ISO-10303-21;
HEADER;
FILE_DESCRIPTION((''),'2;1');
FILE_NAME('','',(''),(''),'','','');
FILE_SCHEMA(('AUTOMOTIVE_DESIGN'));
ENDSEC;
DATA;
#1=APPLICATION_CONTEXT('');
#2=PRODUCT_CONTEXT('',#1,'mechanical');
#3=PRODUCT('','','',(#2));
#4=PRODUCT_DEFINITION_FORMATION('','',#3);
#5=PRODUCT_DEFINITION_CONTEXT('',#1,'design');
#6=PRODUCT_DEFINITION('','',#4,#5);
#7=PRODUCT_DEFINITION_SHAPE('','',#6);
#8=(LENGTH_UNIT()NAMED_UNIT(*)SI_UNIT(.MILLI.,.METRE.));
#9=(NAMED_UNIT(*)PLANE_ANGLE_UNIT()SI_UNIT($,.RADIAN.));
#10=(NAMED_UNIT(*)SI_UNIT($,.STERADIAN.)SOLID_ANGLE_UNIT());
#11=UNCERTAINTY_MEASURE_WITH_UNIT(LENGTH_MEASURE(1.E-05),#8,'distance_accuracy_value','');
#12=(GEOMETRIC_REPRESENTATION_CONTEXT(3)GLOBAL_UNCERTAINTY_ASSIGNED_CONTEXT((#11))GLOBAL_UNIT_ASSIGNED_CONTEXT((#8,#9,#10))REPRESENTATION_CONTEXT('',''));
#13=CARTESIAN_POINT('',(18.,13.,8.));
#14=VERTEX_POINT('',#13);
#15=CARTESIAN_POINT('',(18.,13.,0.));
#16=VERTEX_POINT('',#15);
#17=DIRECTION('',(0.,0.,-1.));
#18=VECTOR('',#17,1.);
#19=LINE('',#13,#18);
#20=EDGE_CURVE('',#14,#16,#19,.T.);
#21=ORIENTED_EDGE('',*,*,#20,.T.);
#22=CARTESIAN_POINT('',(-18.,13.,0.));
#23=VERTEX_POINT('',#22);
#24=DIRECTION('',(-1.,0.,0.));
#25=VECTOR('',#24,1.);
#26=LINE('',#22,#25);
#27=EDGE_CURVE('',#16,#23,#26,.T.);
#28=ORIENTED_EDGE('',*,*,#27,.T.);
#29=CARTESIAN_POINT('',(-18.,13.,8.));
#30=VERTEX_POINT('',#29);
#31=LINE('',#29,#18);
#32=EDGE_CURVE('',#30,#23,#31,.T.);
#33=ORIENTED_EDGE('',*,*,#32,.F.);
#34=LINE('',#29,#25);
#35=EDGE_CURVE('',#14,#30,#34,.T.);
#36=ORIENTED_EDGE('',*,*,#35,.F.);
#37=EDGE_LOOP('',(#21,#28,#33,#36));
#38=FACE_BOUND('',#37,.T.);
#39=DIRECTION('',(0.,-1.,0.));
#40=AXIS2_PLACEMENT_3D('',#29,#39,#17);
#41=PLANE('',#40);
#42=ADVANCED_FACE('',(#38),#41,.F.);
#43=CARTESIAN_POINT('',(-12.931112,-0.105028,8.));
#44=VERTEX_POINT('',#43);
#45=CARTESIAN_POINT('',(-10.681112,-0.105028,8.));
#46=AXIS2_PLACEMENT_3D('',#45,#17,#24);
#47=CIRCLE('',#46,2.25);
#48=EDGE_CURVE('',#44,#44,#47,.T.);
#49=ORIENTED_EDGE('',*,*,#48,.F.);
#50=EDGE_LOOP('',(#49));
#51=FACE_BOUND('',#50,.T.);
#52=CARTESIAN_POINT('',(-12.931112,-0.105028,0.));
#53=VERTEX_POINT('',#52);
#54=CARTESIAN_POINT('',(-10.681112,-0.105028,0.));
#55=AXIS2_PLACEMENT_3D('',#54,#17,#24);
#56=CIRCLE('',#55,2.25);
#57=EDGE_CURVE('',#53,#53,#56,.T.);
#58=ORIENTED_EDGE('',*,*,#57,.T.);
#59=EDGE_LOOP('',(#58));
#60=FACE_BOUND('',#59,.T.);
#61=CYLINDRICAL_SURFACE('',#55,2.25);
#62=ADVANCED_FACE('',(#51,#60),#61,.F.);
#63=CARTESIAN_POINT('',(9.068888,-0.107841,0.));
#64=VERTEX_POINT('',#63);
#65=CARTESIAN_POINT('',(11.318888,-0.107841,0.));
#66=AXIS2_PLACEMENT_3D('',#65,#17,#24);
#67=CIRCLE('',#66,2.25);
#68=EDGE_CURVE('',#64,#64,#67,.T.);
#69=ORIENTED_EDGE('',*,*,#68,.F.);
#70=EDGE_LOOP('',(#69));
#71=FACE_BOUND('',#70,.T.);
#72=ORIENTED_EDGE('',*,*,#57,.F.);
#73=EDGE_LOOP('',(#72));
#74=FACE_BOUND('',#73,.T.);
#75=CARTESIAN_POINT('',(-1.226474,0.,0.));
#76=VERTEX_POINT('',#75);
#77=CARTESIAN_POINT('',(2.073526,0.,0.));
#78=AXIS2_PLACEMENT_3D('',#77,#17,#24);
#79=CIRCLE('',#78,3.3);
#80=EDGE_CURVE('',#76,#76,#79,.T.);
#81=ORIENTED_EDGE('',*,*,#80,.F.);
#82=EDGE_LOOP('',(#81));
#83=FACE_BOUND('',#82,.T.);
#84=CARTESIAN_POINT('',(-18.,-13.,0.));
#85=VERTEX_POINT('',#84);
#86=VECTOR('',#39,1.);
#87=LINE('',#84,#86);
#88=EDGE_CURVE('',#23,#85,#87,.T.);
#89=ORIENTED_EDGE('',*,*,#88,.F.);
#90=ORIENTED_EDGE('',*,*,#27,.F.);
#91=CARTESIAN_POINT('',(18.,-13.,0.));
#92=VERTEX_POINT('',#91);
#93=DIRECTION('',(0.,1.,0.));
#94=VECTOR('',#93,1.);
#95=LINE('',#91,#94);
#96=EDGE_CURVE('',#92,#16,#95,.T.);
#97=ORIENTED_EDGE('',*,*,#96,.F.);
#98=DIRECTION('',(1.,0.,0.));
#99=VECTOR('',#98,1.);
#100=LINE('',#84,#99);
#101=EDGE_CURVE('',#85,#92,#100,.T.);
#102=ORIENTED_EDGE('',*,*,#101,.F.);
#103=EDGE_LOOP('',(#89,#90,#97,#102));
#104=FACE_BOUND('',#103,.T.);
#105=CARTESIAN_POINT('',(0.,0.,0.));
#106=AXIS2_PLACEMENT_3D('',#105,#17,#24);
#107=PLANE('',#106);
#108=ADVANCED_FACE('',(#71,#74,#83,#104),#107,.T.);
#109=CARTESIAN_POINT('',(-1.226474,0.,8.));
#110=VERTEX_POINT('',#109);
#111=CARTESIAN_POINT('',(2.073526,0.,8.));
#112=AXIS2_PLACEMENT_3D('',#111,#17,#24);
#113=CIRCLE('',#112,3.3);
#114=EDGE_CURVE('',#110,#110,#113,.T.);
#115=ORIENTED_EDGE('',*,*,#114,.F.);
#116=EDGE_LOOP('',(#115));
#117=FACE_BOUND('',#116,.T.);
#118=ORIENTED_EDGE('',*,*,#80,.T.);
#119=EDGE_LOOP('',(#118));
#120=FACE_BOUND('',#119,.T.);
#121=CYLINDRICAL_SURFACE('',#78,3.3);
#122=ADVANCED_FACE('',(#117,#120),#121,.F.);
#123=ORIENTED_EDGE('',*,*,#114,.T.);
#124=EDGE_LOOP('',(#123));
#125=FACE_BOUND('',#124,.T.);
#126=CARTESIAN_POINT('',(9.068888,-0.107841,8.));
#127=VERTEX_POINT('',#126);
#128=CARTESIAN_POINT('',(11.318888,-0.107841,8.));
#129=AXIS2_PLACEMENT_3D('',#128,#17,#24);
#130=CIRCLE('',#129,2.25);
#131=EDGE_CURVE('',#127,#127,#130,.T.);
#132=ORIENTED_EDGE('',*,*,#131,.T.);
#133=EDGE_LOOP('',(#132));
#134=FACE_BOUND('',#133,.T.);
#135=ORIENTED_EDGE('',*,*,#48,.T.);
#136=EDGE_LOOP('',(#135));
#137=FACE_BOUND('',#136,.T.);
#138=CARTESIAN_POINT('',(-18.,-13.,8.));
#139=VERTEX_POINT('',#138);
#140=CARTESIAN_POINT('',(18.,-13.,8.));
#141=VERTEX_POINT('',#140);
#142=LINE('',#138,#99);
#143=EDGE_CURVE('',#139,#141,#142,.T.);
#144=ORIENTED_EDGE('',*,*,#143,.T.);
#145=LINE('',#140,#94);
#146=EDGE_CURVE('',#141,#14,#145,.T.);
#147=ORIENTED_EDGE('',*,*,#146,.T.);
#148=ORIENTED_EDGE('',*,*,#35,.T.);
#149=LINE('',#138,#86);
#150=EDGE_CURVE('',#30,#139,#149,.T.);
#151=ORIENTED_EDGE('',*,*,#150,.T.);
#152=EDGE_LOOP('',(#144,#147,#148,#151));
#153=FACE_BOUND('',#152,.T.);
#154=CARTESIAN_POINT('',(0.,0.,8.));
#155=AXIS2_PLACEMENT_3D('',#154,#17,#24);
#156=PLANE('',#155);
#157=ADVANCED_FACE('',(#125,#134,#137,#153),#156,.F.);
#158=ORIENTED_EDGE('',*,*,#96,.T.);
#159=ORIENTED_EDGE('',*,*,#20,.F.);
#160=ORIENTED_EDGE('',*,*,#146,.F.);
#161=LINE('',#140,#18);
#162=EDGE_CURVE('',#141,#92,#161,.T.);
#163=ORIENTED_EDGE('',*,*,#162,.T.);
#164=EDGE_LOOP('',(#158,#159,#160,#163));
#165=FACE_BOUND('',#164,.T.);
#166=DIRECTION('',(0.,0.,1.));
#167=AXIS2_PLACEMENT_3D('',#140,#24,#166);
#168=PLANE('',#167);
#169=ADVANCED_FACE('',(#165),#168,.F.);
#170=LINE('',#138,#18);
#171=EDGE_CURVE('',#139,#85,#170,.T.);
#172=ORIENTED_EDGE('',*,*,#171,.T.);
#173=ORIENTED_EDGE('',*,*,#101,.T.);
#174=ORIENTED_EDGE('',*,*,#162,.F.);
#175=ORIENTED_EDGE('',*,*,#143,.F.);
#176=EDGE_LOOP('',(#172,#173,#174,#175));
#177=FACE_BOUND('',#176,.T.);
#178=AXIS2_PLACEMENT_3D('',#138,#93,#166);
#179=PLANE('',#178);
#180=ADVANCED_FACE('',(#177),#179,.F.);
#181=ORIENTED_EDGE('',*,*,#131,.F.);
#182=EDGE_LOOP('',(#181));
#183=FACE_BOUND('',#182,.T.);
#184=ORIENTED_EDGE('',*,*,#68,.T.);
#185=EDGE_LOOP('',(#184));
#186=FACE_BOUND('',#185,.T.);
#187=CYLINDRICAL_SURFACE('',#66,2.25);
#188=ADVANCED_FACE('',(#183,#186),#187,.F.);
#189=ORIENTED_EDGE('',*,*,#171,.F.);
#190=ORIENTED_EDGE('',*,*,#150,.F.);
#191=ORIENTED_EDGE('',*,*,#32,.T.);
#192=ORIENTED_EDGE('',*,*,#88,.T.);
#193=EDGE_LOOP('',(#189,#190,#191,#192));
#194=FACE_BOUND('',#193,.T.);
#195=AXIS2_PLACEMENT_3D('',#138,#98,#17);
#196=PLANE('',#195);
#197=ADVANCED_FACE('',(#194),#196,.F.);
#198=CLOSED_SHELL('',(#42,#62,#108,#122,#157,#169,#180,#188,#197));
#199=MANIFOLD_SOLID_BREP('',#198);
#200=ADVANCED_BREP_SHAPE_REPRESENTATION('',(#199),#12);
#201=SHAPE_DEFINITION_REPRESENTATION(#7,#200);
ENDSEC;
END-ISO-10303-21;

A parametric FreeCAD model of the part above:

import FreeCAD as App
import Part
import Sketcher
from FreeCAD import Vector


def add_polygon(sketch, points):
    """Adds a closed chain of lines whose ends are joined by coincident constraints."""
    first, n = sketch.GeometryCount, len(points)
    for a, b in zip(points, points[1:] + points[:1]):
        sketch.addGeometry(Part.LineSegment(App.Vector(*a, 0), App.Vector(*b, 0)), False)
    for i in range(n):
        sketch.addConstraint(Sketcher.Constraint("Coincident", first + i, 2, first + (i + 1) % n, 1))

doc = App.newDocument("Part")
body = doc.addObject("PartDesign::Body", "Body")

# Sketch on XY plane
sketch1 = doc.addObject("Sketcher::SketchObject", "Sketch")
body.addObject(sketch1)
sketch1.AttachmentSupport = (doc.XY_Plane, [""])
sketch1.MapMode = "FlatFace"
add_polygon(sketch1, [(-18, 13), (-18, -13), (18, -13), (18, 13)])  # lines 0-3
sketch1.addConstraint(Sketcher.Constraint("Vertical", 0))
sketch1.addConstraint(Sketcher.Constraint("Horizontal", 1))
sketch1.addConstraint(Sketcher.Constraint("Vertical", 2))
sketch1.addConstraint(Sketcher.Constraint("Horizontal", 3))
sketch1.addConstraint(Sketcher.Constraint("Symmetric", 0, 2, 2, 2, -1, 1))
sketch1.addConstraint(Sketcher.Constraint("DistanceX", 1, 1, 1, 2, 36.0))
sketch1.addConstraint(Sketcher.Constraint("DistanceY", 0, 2, 0, 1, 26.0))
pad1 = doc.addObject("PartDesign::Pad", "Pad")
body.addObject(pad1)
pad1.Profile = sketch1
pad1.Length = 8

# Sketch on XY plane
sketch2 = doc.addObject("Sketcher::SketchObject", "Sketch001")
body.addObject(sketch2)
sketch2.AttachmentSupport = (doc.XY_Plane, [""])
sketch2.MapMode = "FlatFace"
sketch2.addGeometry(Part.Circle(Vector(11.3, -0.1, 0), Vector(0, 0, 1), 2.2), False)
sketch2.addGeometry(Part.Circle(Vector(-10.7, -0.1, 0), Vector(0, 0, 1), 2.2), False)
sketch2.addConstraint(Sketcher.Constraint("Equal", 0, 1))
sketch2.addConstraint(Sketcher.Constraint("Diameter", 0, 4.5))
sketch2.addConstraint(Sketcher.Constraint("DistanceX", 1, 3, 0, 3, 22.0))
sketch2.addConstraint(Sketcher.Constraint("DistanceY", 0, 3, -1, 1, 0.107841))
sketch2.addConstraint(Sketcher.Constraint("DistanceX", -1, 1, 0, 3, 11.318888))
sketch2.addConstraint(Sketcher.Constraint("DistanceY", 1, 3, -1, 1, 0.105028))
doc.recompute()
hole = doc.addObject("PartDesign::Hole", "Hole")
body.addObject(hole)
hole.Profile = sketch2
hole.ThreadType = "None"
hole.Diameter = 4.5
hole.DepthType = "ThroughAll"
hole.Reversed = True

# Sketch on XY plane
sketch3 = doc.addObject("Sketcher::SketchObject", "Sketch002")
body.addObject(sketch3)
sketch3.AttachmentSupport = (doc.XY_Plane, [""])
sketch3.MapMode = "FlatFace"
sketch3.addGeometry(Part.Circle(Vector(2.1, 0, 0), Vector(0, 0, 1), 3.3), False)
sketch3.addConstraint(Sketcher.Constraint("PointOnObject", 0, 3, -1))
sketch3.addConstraint(Sketcher.Constraint("Diameter", 0, 6.6))
sketch3.addConstraint(Sketcher.Constraint("DistanceX", -1, 1, 0, 3, 2.073526))
doc.recompute()
hole2 = doc.addObject("PartDesign::Hole", "Hole001")
body.addObject(hole2)
hole2.Profile = sketch3
hole2.ThreadType = "None"
hole2.Diameter = 6.6
hole2.DepthType = "ThroughAll"
hole2.Reversed = True

doc.recompute()
